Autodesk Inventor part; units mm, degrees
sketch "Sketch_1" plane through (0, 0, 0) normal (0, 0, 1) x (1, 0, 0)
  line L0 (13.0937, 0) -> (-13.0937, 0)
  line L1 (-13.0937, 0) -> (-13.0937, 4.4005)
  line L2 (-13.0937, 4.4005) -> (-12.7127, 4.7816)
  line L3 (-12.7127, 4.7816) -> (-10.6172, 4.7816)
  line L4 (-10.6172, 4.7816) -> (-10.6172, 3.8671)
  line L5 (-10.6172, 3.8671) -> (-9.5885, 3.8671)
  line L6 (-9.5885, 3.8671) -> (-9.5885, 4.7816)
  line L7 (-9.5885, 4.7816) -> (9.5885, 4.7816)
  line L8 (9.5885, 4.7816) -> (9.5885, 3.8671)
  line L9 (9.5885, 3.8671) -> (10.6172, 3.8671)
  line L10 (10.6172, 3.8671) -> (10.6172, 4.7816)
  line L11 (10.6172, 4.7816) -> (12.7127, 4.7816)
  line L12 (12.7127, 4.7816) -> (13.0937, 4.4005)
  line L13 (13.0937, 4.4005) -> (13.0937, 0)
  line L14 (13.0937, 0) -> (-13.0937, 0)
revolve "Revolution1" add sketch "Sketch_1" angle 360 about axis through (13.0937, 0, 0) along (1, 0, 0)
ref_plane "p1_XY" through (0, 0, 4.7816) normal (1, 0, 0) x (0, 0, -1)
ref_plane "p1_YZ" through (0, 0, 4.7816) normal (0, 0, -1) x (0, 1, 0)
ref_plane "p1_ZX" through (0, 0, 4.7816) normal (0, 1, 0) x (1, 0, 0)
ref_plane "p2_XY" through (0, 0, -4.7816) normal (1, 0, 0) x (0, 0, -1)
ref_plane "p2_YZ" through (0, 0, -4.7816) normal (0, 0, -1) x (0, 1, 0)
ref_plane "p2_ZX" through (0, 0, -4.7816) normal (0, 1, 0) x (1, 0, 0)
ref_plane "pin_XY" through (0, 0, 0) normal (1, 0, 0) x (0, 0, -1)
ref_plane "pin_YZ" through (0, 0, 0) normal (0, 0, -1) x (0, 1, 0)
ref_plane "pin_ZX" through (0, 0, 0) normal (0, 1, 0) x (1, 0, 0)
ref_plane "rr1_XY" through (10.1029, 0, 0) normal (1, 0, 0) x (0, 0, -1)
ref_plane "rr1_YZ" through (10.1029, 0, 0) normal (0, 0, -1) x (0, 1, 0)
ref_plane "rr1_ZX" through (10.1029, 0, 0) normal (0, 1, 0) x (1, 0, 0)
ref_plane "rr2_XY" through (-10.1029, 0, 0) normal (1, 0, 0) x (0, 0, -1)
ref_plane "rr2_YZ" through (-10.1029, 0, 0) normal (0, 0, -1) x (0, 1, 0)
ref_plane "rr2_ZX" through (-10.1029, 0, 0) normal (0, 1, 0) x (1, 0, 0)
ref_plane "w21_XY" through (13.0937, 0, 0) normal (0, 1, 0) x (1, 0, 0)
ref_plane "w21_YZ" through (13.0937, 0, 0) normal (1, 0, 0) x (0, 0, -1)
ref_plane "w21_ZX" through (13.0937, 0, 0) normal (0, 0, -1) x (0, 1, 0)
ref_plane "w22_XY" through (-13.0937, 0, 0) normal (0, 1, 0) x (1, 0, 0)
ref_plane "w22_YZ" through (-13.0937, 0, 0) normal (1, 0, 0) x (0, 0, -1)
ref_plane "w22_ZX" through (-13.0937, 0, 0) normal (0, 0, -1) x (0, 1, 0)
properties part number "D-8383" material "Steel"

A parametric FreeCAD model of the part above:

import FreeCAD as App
import Part
import Sketcher

V = App.Vector
Q = App.Units.Quantity


def add_polygon(sketch, points):
    """Adds a closed chain of lines whose ends are joined by coincident constraints."""
    first, n = sketch.GeometryCount, len(points)
    for a, b in zip(points, points[1:] + points[:1]):
        sketch.addGeometry(Part.LineSegment(App.Vector(*a, 0), App.Vector(*b, 0)), False)
    for i in range(n):
        sketch.addConstraint(Sketcher.Constraint("Coincident", first + i, 2, first + (i + 1) % n, 1))

doc = App.newDocument("Part")
params = doc.addObject("Spreadsheet::Sheet", "Params")
for row, (alias, value) in enumerate([
    ("sketch1_width", "1.031 in"),
    ("sketch1_width2", "0.755 in"),
    ("sketch1_height", "0.036 in"),
    ("revolution_angle", "360 deg"),
], start=1):
    params.set(f"A{row}", alias)
    params.set(f"B{row}", "=" + value)
    params.setAlias(f"B{row}", alias)

body = doc.addObject("PartDesign::Body", "Body")

# Sketch on XY plane
sketch1 = body.newObject("Sketcher::SketchObject", "Sketch")
sketch1.AttachmentSupport = (doc.getObject("XY_Plane"), [""])
sketch1.MapMode = "FlatFace"
add_polygon(sketch1, [(-13.1, 0), (13.1, 0), (13.1, 4.4), (12.7, 4.8), (10.6, 4.8), (10.6, 3.9), (9.6, 3.9), (9.6, 4.8), (-9.6, 4.8), (-9.6, 3.9), (-10.6, 3.9), (-10.6, 4.8), (-12.7, 4.8), (-13.1, 4.4)])  # lines 0-13
sketch1.addConstraint([
    Sketcher.Constraint("Horizontal", 0),
    Sketcher.Constraint("Vertical", 1),
    Sketcher.Constraint("Horizontal", 3),
    Sketcher.Constraint("Vertical", 4),
    Sketcher.Constraint("Horizontal", 5),
    Sketcher.Constraint("Vertical", 6),
    Sketcher.Constraint("Horizontal", 7),
    Sketcher.Constraint("Vertical", 8),
    Sketcher.Constraint("Horizontal", 9),
    Sketcher.Constraint("Vertical", 10),
    Sketcher.Constraint("Horizontal", 11),
    Sketcher.Constraint("Vertical", 13),
    Sketcher.Constraint("Symmetric", 0, 2, 13, 2, -1, 1),
    Sketcher.Constraint("Symmetric", 5, 2, 8, 2, -2),
    Sketcher.Constraint("Symmetric", 3, 2, 10, 2, -2),
    Sketcher.Constraint("Perpendicular", 2, 12),
    Sketcher.Constraint("Horizontal", 3, 2, 6, 2),
    Sketcher.Constraint("Horizontal", 1, 2, 12, 2),
    Sketcher.Constraint("Equal", 3, 11),
    Sketcher.Constraint("DistanceX", 0, 1, 0, 2, Q("1.031 in")),
    Sketcher.Constraint("DistanceX", 7, 2, 7, 1, Q("0.755 in")),
    Sketcher.Constraint("DistanceY", 4, 2, 4, 1, Q("0.036 in")),
    Sketcher.Constraint("DistanceX", 3, 2, 3, 1, Q("0.0825 in")),
    Sketcher.Constraint("DistanceX", 5, 2, 5, 1, Q("0.0405 in")),
    Sketcher.Constraint("DistanceY", 1, 1, 1, 2, Q("4.4005 mm")),
])
sketch1.setExpression("Constraints[33]", "Params.sketch1_width")
sketch1.setExpression("Constraints[34]", "Params.sketch1_width2")
sketch1.setExpression("Constraints[35]", "Params.sketch1_height")
revolution = body.newObject("PartDesign::Revolution", "Revolution")
revolution.Profile = sketch1
revolution.ReferenceAxis = (sketch1, ["H_Axis"])
revolution.setExpression("Angle", "Params.revolution_angle")

doc.recompute()
